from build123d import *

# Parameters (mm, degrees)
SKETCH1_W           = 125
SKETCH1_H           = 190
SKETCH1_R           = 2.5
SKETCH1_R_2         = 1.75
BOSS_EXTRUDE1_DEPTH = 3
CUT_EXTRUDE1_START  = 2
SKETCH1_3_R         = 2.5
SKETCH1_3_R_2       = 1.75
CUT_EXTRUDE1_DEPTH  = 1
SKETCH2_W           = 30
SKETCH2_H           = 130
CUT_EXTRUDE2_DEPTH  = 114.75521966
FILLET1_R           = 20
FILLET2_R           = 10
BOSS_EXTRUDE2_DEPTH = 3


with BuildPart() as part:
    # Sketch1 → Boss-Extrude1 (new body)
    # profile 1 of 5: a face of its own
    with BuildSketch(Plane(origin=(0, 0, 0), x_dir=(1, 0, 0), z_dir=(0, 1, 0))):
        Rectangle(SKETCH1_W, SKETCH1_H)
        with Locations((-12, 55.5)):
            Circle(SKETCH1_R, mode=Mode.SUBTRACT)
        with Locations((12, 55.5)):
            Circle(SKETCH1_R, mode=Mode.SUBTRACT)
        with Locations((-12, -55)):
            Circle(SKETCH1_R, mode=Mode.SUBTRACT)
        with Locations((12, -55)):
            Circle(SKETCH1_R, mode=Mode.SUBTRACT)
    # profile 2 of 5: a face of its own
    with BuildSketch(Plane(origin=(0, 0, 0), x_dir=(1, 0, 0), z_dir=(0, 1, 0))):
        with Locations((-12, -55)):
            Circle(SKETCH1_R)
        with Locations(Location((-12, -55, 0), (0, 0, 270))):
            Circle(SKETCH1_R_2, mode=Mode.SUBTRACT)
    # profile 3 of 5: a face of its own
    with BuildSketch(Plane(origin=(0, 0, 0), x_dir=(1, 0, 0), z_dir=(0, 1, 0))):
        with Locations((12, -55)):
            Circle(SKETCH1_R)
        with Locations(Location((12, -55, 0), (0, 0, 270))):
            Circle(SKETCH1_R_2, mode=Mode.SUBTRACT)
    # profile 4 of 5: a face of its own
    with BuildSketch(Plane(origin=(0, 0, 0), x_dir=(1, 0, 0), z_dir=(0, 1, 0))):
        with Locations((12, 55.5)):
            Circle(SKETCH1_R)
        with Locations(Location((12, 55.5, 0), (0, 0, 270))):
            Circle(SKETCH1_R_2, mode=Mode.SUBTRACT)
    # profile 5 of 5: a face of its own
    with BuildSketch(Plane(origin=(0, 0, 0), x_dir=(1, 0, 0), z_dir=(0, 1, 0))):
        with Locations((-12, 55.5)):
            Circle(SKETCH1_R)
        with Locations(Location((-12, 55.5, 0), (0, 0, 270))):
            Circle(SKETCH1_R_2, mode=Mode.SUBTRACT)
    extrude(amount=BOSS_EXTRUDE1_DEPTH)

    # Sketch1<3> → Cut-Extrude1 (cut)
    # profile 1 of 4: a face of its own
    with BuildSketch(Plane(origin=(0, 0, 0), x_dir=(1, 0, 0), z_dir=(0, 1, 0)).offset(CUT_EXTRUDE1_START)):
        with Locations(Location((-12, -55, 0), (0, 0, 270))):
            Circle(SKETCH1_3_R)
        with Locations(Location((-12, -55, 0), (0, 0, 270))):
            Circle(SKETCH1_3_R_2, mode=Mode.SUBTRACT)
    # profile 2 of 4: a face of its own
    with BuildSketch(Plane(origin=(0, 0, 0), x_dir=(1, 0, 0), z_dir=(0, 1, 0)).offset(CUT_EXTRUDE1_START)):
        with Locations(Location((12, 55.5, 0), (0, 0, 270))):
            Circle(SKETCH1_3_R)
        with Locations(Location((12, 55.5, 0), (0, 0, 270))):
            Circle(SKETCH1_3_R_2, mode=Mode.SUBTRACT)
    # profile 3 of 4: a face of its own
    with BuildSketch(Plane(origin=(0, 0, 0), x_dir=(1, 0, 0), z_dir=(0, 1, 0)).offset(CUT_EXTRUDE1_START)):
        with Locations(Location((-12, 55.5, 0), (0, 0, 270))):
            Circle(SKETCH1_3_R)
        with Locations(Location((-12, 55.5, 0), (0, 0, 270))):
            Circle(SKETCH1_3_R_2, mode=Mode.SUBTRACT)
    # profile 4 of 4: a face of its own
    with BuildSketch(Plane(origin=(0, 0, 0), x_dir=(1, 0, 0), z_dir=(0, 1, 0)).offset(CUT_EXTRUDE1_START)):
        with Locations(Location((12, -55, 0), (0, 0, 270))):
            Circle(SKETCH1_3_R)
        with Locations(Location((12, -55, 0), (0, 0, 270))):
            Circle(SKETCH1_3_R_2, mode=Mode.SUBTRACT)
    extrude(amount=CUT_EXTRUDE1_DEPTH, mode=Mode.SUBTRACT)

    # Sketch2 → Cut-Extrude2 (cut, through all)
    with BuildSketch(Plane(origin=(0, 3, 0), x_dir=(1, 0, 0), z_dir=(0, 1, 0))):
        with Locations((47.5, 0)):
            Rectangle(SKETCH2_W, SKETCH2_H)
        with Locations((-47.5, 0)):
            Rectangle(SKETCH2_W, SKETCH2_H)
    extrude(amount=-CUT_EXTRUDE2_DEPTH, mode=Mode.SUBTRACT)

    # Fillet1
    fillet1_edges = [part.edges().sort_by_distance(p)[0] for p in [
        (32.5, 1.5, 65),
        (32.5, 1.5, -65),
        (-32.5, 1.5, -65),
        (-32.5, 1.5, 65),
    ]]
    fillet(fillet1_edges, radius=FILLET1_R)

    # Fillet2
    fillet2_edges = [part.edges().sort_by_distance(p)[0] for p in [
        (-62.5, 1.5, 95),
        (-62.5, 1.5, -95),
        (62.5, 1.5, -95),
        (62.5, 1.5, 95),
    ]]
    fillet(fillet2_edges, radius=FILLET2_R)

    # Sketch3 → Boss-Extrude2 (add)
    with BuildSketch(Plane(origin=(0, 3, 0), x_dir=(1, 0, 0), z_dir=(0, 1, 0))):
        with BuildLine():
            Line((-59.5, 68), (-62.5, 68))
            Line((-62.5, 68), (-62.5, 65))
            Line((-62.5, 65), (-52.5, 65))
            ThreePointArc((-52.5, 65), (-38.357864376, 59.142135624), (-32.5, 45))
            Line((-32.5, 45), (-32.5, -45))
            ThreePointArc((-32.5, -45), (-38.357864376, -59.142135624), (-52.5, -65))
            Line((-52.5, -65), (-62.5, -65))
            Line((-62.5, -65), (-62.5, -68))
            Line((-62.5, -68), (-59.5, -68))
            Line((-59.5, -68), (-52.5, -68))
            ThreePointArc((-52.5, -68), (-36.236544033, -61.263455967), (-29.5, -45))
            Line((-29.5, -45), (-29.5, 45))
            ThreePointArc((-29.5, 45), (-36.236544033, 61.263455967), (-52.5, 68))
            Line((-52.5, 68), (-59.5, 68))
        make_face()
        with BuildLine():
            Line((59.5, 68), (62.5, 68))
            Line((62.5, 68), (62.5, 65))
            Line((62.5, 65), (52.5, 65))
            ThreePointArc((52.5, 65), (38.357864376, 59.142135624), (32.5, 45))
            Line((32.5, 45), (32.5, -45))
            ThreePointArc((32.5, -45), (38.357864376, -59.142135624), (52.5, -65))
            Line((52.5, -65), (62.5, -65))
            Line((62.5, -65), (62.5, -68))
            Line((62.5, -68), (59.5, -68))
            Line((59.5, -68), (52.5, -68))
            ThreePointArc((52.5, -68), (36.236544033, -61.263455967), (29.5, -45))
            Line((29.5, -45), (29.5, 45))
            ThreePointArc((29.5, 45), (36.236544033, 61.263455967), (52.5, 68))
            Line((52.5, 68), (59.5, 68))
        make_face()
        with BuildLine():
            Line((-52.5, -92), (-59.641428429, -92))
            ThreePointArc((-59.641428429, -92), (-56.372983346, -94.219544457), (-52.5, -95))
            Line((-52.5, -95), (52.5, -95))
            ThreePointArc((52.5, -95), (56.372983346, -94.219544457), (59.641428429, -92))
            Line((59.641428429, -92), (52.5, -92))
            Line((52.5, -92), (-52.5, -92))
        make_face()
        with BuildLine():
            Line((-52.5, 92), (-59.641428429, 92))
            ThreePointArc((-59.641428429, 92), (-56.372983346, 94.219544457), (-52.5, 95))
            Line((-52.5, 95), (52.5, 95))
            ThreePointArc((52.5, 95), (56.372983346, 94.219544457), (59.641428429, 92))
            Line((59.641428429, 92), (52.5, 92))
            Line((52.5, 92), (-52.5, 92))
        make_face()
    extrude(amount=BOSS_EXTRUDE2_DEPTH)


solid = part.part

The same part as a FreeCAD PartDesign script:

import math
import FreeCAD as App
import Part
import Sketcher
Q = App.Units.Quantity


def edges_at(feature, points):
    """Names of the edges that pass closest to the given points."""
    edges = feature.Shape.Edges
    near = lambda p: min(range(len(edges)), key=lambda i: edges[i].distToShape(Part.Vertex(*p))[0])
    return sorted({f"Edge{near(p) + 1}" for p in points})

doc = App.newDocument("Part")
body = doc.addObject("PartDesign::Body", "Body")

sketch1 = body.newObject("Sketcher::SketchObject", "Sketch")
sketch1.AttachmentSupport = (doc.getObject("XZ_Plane"), [""])
sketch1.MapMode = "FlatFace"
sketch1.addGeometry(Part.LineSegment(App.Vector(-62.5, -95, 0), App.Vector(-62.5, 95, 0)), False)
sketch1.addGeometry(Part.LineSegment(App.Vector(-62.5, 95, 0), App.Vector(62.5, 95, 0)), False)
sketch1.addGeometry(Part.LineSegment(App.Vector(62.5, 95, 0), App.Vector(62.5, -95, 0)), False)
sketch1.addGeometry(Part.LineSegment(App.Vector(62.5, -95, 0), App.Vector(-62.5, -95, 0)), False)
sketch1.addGeometry(Part.Circle(App.Vector(-12, 55, 0), App.Vector(0, 0, 1), 1.8), False)
sketch1.addGeometry(Part.Circle(App.Vector(12, 55, 0), App.Vector(0, 0, 1), 1.8), False)
sketch1.addGeometry(Part.Circle(App.Vector(-12, -55.5, 0), App.Vector(0, 0, 1), 1.8), False)
sketch1.addGeometry(Part.Circle(App.Vector(12, -55.5, 0), App.Vector(0, 0, 1), 1.8), False)
sketch1.addConstraint(Sketcher.Constraint("Coincident", 0, 2, 1, 1))
sketch1.addConstraint(Sketcher.Constraint("Coincident", 1, 2, 2, 1))
sketch1.addConstraint(Sketcher.Constraint("Coincident", 2, 2, 3, 1))
sketch1.addConstraint(Sketcher.Constraint("Coincident", 3, 2, 0, 1))
sketch1.addConstraint(Sketcher.Constraint("Vertical", 0))
sketch1.addConstraint(Sketcher.Constraint("Horizontal", 1))
sketch1.addConstraint(Sketcher.Constraint("Vertical", 2))
sketch1.addConstraint(Sketcher.Constraint("Horizontal", 3))
sketch1.addConstraint(Sketcher.Constraint("Equal", 4, 5))
sketch1.addConstraint(Sketcher.Constraint("Equal", 5, 6))
sketch1.addConstraint(Sketcher.Constraint("Equal", 6, 7))
sketch1.addConstraint(Sketcher.Constraint("Symmetric", 0, 2, 2, 2, -1, 1))
sketch1.addConstraint(Sketcher.Constraint("Symmetric", 4, 3, 5, 3, -2))
sketch1.addConstraint(Sketcher.Constraint("Symmetric", 6, 3, 7, 3, -2))
sketch1.addConstraint(Sketcher.Constraint("Vertical", 4, 3, 6, 3))
sketch1.addConstraint(Sketcher.Constraint("Diameter", 4, Q("3.5 mm")))
sketch1.addConstraint(Sketcher.Constraint("DistanceX", 1, 1, 1, 2, Q("125 mm")))
sketch1.addConstraint(Sketcher.Constraint("DistanceY", 0, 1, 0, 2, Q("190 mm")))
sketch1.addConstraint(Sketcher.Constraint("DistanceX", 4, 3, -1, 1, Q("12 mm")))
sketch1.addConstraint(Sketcher.Constraint("DistanceY", -1, 1, 4, 3, Q("55 mm")))
sketch1.addConstraint(Sketcher.Constraint("DistanceY", 6, 3, -1, 1, Q("55.5 mm")))
pad1 = body.newObject("PartDesign::Pad", "Pad")
pad1.Profile = sketch1
pad1.Length = 3
pad1.Reversed = True

sketch2 = body.newObject("Sketcher::SketchObject", "Sketch001")
sketch2.AttachmentSupport = (doc.getObject("XZ_Plane"), [""])
sketch2.MapMode = "FlatFace"
sketch2.AttachmentOffset = App.Placement(App.Vector(0, 0, -2), App.Rotation())
sketch2.addGeometry(Part.Circle(App.Vector(-12, 55, 0), App.Vector(0, 0, 1), 2.5), False)
sketch2.addGeometry(Part.Circle(App.Vector(-12, 55, 0), App.Vector(0, 0, 1), 1.8), False)
sketch2.addGeometry(Part.Circle(App.Vector(12, -55.5, 0), App.Vector(0, 0, 1), 2.5), False)
sketch2.addGeometry(Part.Circle(App.Vector(12, -55.5, 0), App.Vector(0, 0, 1), 1.8), False)
sketch2.addGeometry(Part.Circle(App.Vector(-12, -55.5, 0), App.Vector(0, 0, 1), 2.5), False)
sketch2.addGeometry(Part.Circle(App.Vector(-12, -55.5, 0), App.Vector(0, 0, 1), 1.8), False)
sketch2.addGeometry(Part.Circle(App.Vector(12, 55, 0), App.Vector(0, 0, 1), 2.5), False)
sketch2.addGeometry(Part.Circle(App.Vector(12, 55, 0), App.Vector(0, 0, 1), 1.8), False)
sketch2.addConstraint(Sketcher.Constraint("Coincident", 1, 3, 0, 3))
sketch2.addConstraint(Sketcher.Constraint("Coincident", 3, 3, 2, 3))
sketch2.addConstraint(Sketcher.Constraint("Coincident", 5, 3, 4, 3))
sketch2.addConstraint(Sketcher.Constraint("Coincident", 7, 3, 6, 3))
sketch2.addConstraint(Sketcher.Constraint("Equal", 0, 2))
sketch2.addConstraint(Sketcher.Constraint("Equal", 1, 3))
sketch2.addConstraint(Sketcher.Constraint("Equal", 2, 4))
sketch2.addConstraint(Sketcher.Constraint("Equal", 3, 5))
sketch2.addConstraint(Sketcher.Constraint("Equal", 4, 6))
sketch2.addConstraint(Sketcher.Constraint("Equal", 5, 7))
sketch2.addConstraint(Sketcher.Constraint("Symmetric", 2, 3, 4, 3, -2))
sketch2.addConstraint(Sketcher.Constraint("Symmetric", 0, 3, 6, 3, -2))
sketch2.addConstraint(Sketcher.Constraint("Vertical", 1, 3, 4, 3))
sketch2.addConstraint(Sketcher.Constraint("Diameter", 0, Q("5 mm")))
sketch2.addConstraint(Sketcher.Constraint("Diameter", 1, Q("3.5 mm")))
sketch2.addConstraint(Sketcher.Constraint("DistanceX", 0, 3, -1, 1, Q("12 mm")))
sketch2.addConstraint(Sketcher.Constraint("DistanceY", -1, 1, 0, 3, Q("55 mm")))
sketch2.addConstraint(Sketcher.Constraint("DistanceY", 2, 3, -1, 1, Q("55.5 mm")))
pocket1 = body.newObject("PartDesign::Pocket", "Pocket")
pocket1.Profile = sketch2
pocket1.Length = 1

sketch3 = body.newObject("Sketcher::SketchObject", "Sketch002")
sketch3.AttachmentSupport = (doc.getObject("XZ_Plane"), [""])
sketch3.MapMode = "FlatFace"
sketch3.AttachmentOffset = App.Placement(App.Vector(0, 0, -3), App.Rotation())
sketch3.addGeometry(Part.LineSegment(App.Vector(32, -65, 0), App.Vector(32, 65, 0)), False)
sketch3.addGeometry(Part.LineSegment(App.Vector(32, 65, 0), App.Vector(62, 65, 0)), False)
sketch3.addGeometry(Part.LineSegment(App.Vector(62, 65, 0), App.Vector(62, -65, 0)), False)
sketch3.addGeometry(Part.LineSegment(App.Vector(62, -65, 0), App.Vector(32, -65, 0)), False)
sketch3.addGeometry(Part.LineSegment(App.Vector(-62, -65, 0), App.Vector(-62, 65, 0)), False)
sketch3.addGeometry(Part.LineSegment(App.Vector(-62, 65, 0), App.Vector(-32, 65, 0)), False)
sketch3.addGeometry(Part.LineSegment(App.Vector(-32, 65, 0), App.Vector(-32, -65, 0)), False)
sketch3.addGeometry(Part.LineSegment(App.Vector(-32, -65, 0), App.Vector(-62, -65, 0)), False)
sketch3.addConstraint(Sketcher.Constraint("Coincident", 0, 2, 1, 1))
sketch3.addConstraint(Sketcher.Constraint("Coincident", 1, 2, 2, 1))
sketch3.addConstraint(Sketcher.Constraint("Coincident", 2, 2, 3, 1))
sketch3.addConstraint(Sketcher.Constraint("Coincident", 3, 2, 0, 1))
sketch3.addConstraint(Sketcher.Constraint("Coincident", 4, 2, 5, 1))
sketch3.addConstraint(Sketcher.Constraint("Coincident", 5, 2, 6, 1))
sketch3.addConstraint(Sketcher.Constraint("Coincident", 6, 2, 7, 1))
sketch3.addConstraint(Sketcher.Constraint("Coincident", 7, 2, 4, 1))
sketch3.addConstraint(Sketcher.Constraint("Vertical", 0))
sketch3.addConstraint(Sketcher.Constraint("Horizontal", 1))
sketch3.addConstraint(Sketcher.Constraint("Vertical", 2))
sketch3.addConstraint(Sketcher.Constraint("Horizontal", 3))
sketch3.addConstraint(Sketcher.Constraint("Vertical", 4))
sketch3.addConstraint(Sketcher.Constraint("Horizontal", 5))
sketch3.addConstraint(Sketcher.Constraint("Vertical", 6))
sketch3.addConstraint(Sketcher.Constraint("Horizontal", 7))
sketch3.addConstraint(Sketcher.Constraint("Symmetric", 2, 2, 4, 2, -1, 1))
sketch3.addConstraint(Sketcher.Constraint("Symmetric", 0, 2, 6, 2, -1, 1))
sketch3.addConstraint(Sketcher.Constraint("Horizontal", 1, 2, 4, 2))
sketch3.addConstraint(Sketcher.Constraint("DistanceX", 1, 1, 1, 2, Q("30 mm")))
sketch3.addConstraint(Sketcher.Constraint("DistanceY", 0, 1, 0, 2, Q("130 mm")))
sketch3.addConstraint(Sketcher.Constraint("DistanceX", 4, 2, 0, 2, Q("95 mm")))
pocket2 = body.newObject("PartDesign::Pocket", "Pocket001")
pocket2.Profile = sketch3
pocket2.Type = "ThroughAll"
pocket2.Reversed = True
doc.recompute()

fillet = body.newObject("PartDesign::Fillet", "Fillet")
fillet.Base = (pocket2, edges_at(pocket2, [
    (32.5, 1.5, 65),
    (32.5, 1.5, -65),
    (-32.5, 1.5, -65),
    (-32.5, 1.5, 65),
]))
fillet.Radius = 20
doc.recompute()

fillet2 = body.newObject("PartDesign::Fillet", "Fillet001")
fillet2.Base = (fillet, edges_at(fillet, [
    (-62.5, 1.5, 95),
    (-62.5, 1.5, -95),
    (62.5, 1.5, -95),
    (62.5, 1.5, 95),
]))
fillet2.Radius = 10

sketch4 = body.newObject("Sketcher::SketchObject", "Sketch003")
sketch4.AttachmentSupport = (doc.getObject("XZ_Plane"), [""])
sketch4.MapMode = "FlatFace"
sketch4.AttachmentOffset = App.Placement(App.Vector(0, 0, -3), App.Rotation())
sketch4.addGeometry(Part.LineSegment(App.Vector(-62.5, -68, 0), App.Vector(-62.5, -65, 0)), False)
sketch4.addGeometry(Part.LineSegment(App.Vector(-62.5, -65, 0), App.Vector(-52.5, -65, 0)), False)
sketch4.addGeometry(Part.ArcOfCircle(Part.Circle(App.Vector(-52.5, -45, 0), App.Vector(0, 0, 1), 20), math.radians(-90), math.radians(0)), False)
sketch4.addGeometry(Part.LineSegment(App.Vector(-32.5, -45, 0), App.Vector(-32.5, 45, 0)), False)
sketch4.addGeometry(Part.ArcOfCircle(Part.Circle(App.Vector(-52.5, 45, 0), App.Vector(0, 0, 1), 20), math.radians(0), math.radians(90)), False)
sketch4.addGeometry(Part.LineSegment(App.Vector(-52.5, 65, 0), App.Vector(-62.5, 65, 0)), False)
sketch4.addGeometry(Part.LineSegment(App.Vector(-62.5, 65, 0), App.Vector(-62.5, 68, 0)), False)
sketch4.addGeometry(Part.LineSegment(App.Vector(-62.5, 68, 0), App.Vector(-52.5, 68, 0)), False)
sketch4.addGeometry(Part.ArcOfCircle(Part.Circle(App.Vector(-52.5, 45, 0), App.Vector(0, 0, 1), 23), math.radians(0), math.radians(90)), False)
sketch4.addGeometry(Part.LineSegment(App.Vector(-29.5, 45, 0), App.Vector(-29.5, -45, 0)), False)
sketch4.addGeometry(Part.ArcOfCircle(Part.Circle(App.Vector(-52.5, -45, 0), App.Vector(0, 0, 1), 23), math.radians(-90), math.radians(0)), False)
sketch4.addGeometry(Part.LineSegment(App.Vector(-52.5, -68, 0), App.Vector(-62.5, -68, 0)), False)
sketch4.addGeometry(Part.LineSegment(App.Vector(62.5, -65, 0), App.Vector(62.5, -68, 0)), False)
sketch4.addGeometry(Part.LineSegment(App.Vector(62.5, -68, 0), App.Vector(52.5, -68, 0)), False)
sketch4.addGeometry(Part.ArcOfCircle(Part.Circle(App.Vector(52.5, -45, 0), App.Vector(0, 0, 1), 23), math.radians(-180), math.radians(-90)), False)
sketch4.addGeometry(Part.LineSegment(App.Vector(29.5, -45, 0), App.Vector(29.5, 45, 0)), False)
sketch4.addGeometry(Part.ArcOfCircle(Part.Circle(App.Vector(52.5, 45, 0), App.Vector(0, 0, 1), 23), math.radians(90), math.radians(180)), False)
sketch4.addGeometry(Part.LineSegment(App.Vector(52.5, 68, 0), App.Vector(62.5, 68, 0)), False)
sketch4.addGeometry(Part.LineSegment(App.Vector(62.5, 68, 0), App.Vector(62.5, 65, 0)), False)
sketch4.addGeometry(Part.LineSegment(App.Vector(62.5, 65, 0), App.Vector(52.5, 65, 0)), False)
sketch4.addGeometry(Part.ArcOfCircle(Part.Circle(App.Vector(52.5, 45, 0), App.Vector(0, 0, 1), 20), math.radians(90), math.radians(180)), False)
sketch4.addGeometry(Part.LineSegment(App.Vector(32.5, 45, 0), App.Vector(32.5, -45, 0)), False)
sketch4.addGeometry(Part.ArcOfCircle(Part.Circle(App.Vector(52.5, -45, 0), App.Vector(0, 0, 1), 20), math.radians(180), math.radians(270)), False)
sketch4.addGeometry(Part.LineSegment(App.Vector(52.5, -65, 0), App.Vector(62.5, -65, 0)), False)
sketch4.addGeometry(Part.ArcOfCircle(Part.Circle(App.Vector(-52.5, 85, 0), App.Vector(0, 0, 1), 10), math.radians(90), math.radians(136)), False)
sketch4.addGeometry(Part.LineSegment(App.Vector(-52.5, 95, 0), App.Vector(52.5, 95, 0)), False)
sketch4.addGeometry(Part.ArcOfCircle(Part.Circle(App.Vector(52.5, 85, 0), App.Vector(0, 0, 1), 10), math.radians(44), math.radians(90)), False)
sketch4.addGeometry(Part.LineSegment(App.Vector(59.6, 92, 0), App.Vector(-59.6, 92, 0)), False)
sketch4.addGeometry(Part.ArcOfCircle(Part.Circle(App.Vector(-52.5, -85, 0), App.Vector(0, 0, 1), 10), math.radians(-136), math.radians(-90)), False)
sketch4.addGeometry(Part.LineSegment(App.Vector(-59.6, -92, 0), App.Vector(59.6, -92, 0)), False)
sketch4.addGeometry(Part.ArcOfCircle(Part.Circle(App.Vector(52.5, -85, 0), App.Vector(0, 0, 1), 10), math.radians(-90), math.radians(-44)), False)
sketch4.addGeometry(Part.LineSegment(App.Vector(52.5, -95, 0), App.Vector(-52.5, -95, 0)), False)
sketch4.addConstraint(Sketcher.Constraint("Coincident", 0, 2, 1, 1))
sketch4.addConstraint(Sketcher.Constraint("Tangent", 1, 2, 2, 1))
sketch4.addConstraint(Sketcher.Constraint("Tangent", 2, 2, 3, 1))
sketch4.addConstraint(Sketcher.Constraint("Tangent", 3, 2, 4, 1))
sketch4.addConstraint(Sketcher.Constraint("Tangent", 4, 2, 5, 1))
sketch4.addConstraint(Sketcher.Constraint("Coincident", 5, 2, 6, 1))
sketch4.addConstraint(Sketcher.Constraint("Coincident", 6, 2, 7, 1))
sketch4.addConstraint(Sketcher.Constraint("Tangent", 7, 2, 8, 2))
sketch4.addConstraint(Sketcher.Constraint("Tangent", 8, 1, 9, 1))
sketch4.addConstraint(Sketcher.Constraint("Tangent", 9, 2, 10, 2))
sketch4.addConstraint(Sketcher.Constraint("Tangent", 10, 1, 11, 1))
sketch4.addConstraint(Sketcher.Constraint("Coincident", 11, 2, 0, 1))
sketch4.addConstraint(Sketcher.Constraint("Coincident", 12, 2, 13, 1))
sketch4.addConstraint(Sketcher.Constraint("Tangent", 13, 2, 14, 2))
sketch4.addConstraint(Sketcher.Constraint("Tangent", 14, 1, 15, 1))
sketch4.addConstraint(Sketcher.Constraint("Tangent", 15, 2, 16, 2))
sketch4.addConstraint(Sketcher.Constraint("Tangent", 16, 1, 17, 1))
sketch4.addConstraint(Sketcher.Constraint("Coincident", 17, 2, 18, 1))
sketch4.addConstraint(Sketcher.Constraint("Coincident", 18, 2, 19, 1))
sketch4.addConstraint(Sketcher.Constraint("Tangent", 19, 2, 20, 1))
sketch4.addConstraint(Sketcher.Constraint("Tangent", 20, 2, 21, 1))
sketch4.addConstraint(Sketcher.Constraint("Tangent", 21, 2, 22, 1))
sketch4.addConstraint(Sketcher.Constraint("Tangent", 22, 2, 23, 1))
sketch4.addConstraint(Sketcher.Constraint("Coincident", 23, 2, 12, 1))
sketch4.addConstraint(Sketcher.Constraint("Tangent", 24, 1, 25, 1))
sketch4.addConstraint(Sketcher.Constraint("Tangent", 25, 2, 26, 2))
sketch4.addConstraint(Sketcher.Constraint("Coincident", 26, 1, 27, 1))
sketch4.addConstraint(Sketcher.Constraint("Coincident", 27, 2, 24, 2))
sketch4.addConstraint(Sketcher.Constraint("Coincident", 28, 1, 29, 1))
sketch4.addConstraint(Sketcher.Constraint("Coincident", 29, 2, 30, 2))
sketch4.addConstraint(Sketcher.Constraint("Tangent", 30, 1, 31, 1))
sketch4.addConstraint(Sketcher.Constraint("Tangent", 31, 2, 28, 2))
sketch4.addConstraint(Sketcher.Constraint("Vertical", 0))
sketch4.addConstraint(Sketcher.Constraint("Horizontal", 1))
sketch4.addConstraint(Sketcher.Constraint("Vertical", 3))
sketch4.addConstraint(Sketcher.Constraint("Horizontal", 5))
sketch4.addConstraint(Sketcher.Constraint("Vertical", 6))
sketch4.addConstraint(Sketcher.Constraint("Horizontal", 7))
sketch4.addConstraint(Sketcher.Constraint("Vertical", 9))
sketch4.addConstraint(Sketcher.Constraint("Horizontal", 11))
sketch4.addConstraint(Sketcher.Constraint("Vertical", 12))
sketch4.addConstraint(Sketcher.Constraint("Horizontal", 13))
sketch4.addConstraint(Sketcher.Constraint("Vertical", 15))
sketch4.addConstraint(Sketcher.Constraint("Horizontal", 17))
sketch4.addConstraint(Sketcher.Constraint("Vertical", 18))
sketch4.addConstraint(Sketcher.Constraint("Horizontal", 19))
sketch4.addConstraint(Sketcher.Constraint("Vertical", 21))
sketch4.addConstraint(Sketcher.Constraint("Horizontal", 23))
sketch4.addConstraint(Sketcher.Constraint("Horizontal", 25))
sketch4.addConstraint(Sketcher.Constraint("Horizontal", 27))
sketch4.addConstraint(Sketcher.Constraint("Horizontal", 29))
sketch4.addConstraint(Sketcher.Constraint("Horizontal", 31))
sketch4.addConstraint(Sketcher.Constraint("Coincident", 8, 3, 4, 3))
sketch4.addConstraint(Sketcher.Constraint("Coincident", 10, 3, 2, 3))
sketch4.addConstraint(Sketcher.Constraint("Coincident", 20, 3, 16, 3))
sketch4.addConstraint(Sketcher.Constraint("Coincident", 22, 3, 14, 3))
sketch4.addConstraint(Sketcher.Constraint("Equal", 2, 4))
sketch4.addConstraint(Sketcher.Constraint("Equal", 10, 14))
sketch4.addConstraint(Sketcher.Constraint("Equal", 14, 16))
sketch4.addConstraint(Sketcher.Constraint("Equal", 4, 20))
sketch4.addConstraint(Sketcher.Constraint("Equal", 24, 26))
sketch4.addConstraint(Sketcher.Constraint("Equal", 26, 28))
sketch4.addConstraint(Sketcher.Constraint("Equal", 28, 30))
sketch4.addConstraint(Sketcher.Constraint("Symmetric", 4, 3, 14, 3, -1, 1))
sketch4.addConstraint(Sketcher.Constraint("Symmetric", 26, 3, 28, 3, -1, 1))
sketch4.addConstraint(Sketcher.Constraint("Symmetric", 11, 2, 17, 2, -1, 1))
sketch4.addConstraint(Sketcher.Constraint("Symmetric", 27, 2, 29, 2, -1, 1))
sketch4.addConstraint(Sketcher.Constraint("Symmetric", 11, 2, 12, 2, -2))
sketch4.addConstraint(Sketcher.Constraint("Vertical", 10, 3, 24, 3))
sketch4.addConstraint(Sketcher.Constraint("Vertical", 22, 3, 26, 3))
sketch4.addConstraint(Sketcher.Constraint("Vertical", 0, 2, 5, 2))
sketch4.addConstraint(Sketcher.Constraint("Radius", 2, Q("20 mm")))
sketch4.addConstraint(Sketcher.Constraint("Radius", 8, Q("23 mm")))
sketch4.addConstraint(Sketcher.Constraint("Radius", 24, Q("10 mm")))
sketch4.addConstraint(Sketcher.Constraint("DistanceX", 1, 1, 1, 2, Q("10 mm")))
sketch4.addConstraint(Sketcher.Constraint("DistanceX", 25, 1, 25, 2, Q("105 mm")))
sketch4.addConstraint(Sketcher.Constraint("DistanceY", 3, 1, 3, 2, Q("90 mm")))
sketch4.addConstraint(Sketcher.Constraint("DistanceY", -1, 1, 24, 3, Q("85 mm")))
sketch4.addConstraint(Sketcher.Constraint("DistanceY", -1, 1, 26, 1, Q("92 mm")))
pad2 = body.newObject("PartDesign::Pad", "Pad001")
pad2.Profile = sketch4
pad2.Length = 3
pad2.Reversed = True

doc.recompute()
